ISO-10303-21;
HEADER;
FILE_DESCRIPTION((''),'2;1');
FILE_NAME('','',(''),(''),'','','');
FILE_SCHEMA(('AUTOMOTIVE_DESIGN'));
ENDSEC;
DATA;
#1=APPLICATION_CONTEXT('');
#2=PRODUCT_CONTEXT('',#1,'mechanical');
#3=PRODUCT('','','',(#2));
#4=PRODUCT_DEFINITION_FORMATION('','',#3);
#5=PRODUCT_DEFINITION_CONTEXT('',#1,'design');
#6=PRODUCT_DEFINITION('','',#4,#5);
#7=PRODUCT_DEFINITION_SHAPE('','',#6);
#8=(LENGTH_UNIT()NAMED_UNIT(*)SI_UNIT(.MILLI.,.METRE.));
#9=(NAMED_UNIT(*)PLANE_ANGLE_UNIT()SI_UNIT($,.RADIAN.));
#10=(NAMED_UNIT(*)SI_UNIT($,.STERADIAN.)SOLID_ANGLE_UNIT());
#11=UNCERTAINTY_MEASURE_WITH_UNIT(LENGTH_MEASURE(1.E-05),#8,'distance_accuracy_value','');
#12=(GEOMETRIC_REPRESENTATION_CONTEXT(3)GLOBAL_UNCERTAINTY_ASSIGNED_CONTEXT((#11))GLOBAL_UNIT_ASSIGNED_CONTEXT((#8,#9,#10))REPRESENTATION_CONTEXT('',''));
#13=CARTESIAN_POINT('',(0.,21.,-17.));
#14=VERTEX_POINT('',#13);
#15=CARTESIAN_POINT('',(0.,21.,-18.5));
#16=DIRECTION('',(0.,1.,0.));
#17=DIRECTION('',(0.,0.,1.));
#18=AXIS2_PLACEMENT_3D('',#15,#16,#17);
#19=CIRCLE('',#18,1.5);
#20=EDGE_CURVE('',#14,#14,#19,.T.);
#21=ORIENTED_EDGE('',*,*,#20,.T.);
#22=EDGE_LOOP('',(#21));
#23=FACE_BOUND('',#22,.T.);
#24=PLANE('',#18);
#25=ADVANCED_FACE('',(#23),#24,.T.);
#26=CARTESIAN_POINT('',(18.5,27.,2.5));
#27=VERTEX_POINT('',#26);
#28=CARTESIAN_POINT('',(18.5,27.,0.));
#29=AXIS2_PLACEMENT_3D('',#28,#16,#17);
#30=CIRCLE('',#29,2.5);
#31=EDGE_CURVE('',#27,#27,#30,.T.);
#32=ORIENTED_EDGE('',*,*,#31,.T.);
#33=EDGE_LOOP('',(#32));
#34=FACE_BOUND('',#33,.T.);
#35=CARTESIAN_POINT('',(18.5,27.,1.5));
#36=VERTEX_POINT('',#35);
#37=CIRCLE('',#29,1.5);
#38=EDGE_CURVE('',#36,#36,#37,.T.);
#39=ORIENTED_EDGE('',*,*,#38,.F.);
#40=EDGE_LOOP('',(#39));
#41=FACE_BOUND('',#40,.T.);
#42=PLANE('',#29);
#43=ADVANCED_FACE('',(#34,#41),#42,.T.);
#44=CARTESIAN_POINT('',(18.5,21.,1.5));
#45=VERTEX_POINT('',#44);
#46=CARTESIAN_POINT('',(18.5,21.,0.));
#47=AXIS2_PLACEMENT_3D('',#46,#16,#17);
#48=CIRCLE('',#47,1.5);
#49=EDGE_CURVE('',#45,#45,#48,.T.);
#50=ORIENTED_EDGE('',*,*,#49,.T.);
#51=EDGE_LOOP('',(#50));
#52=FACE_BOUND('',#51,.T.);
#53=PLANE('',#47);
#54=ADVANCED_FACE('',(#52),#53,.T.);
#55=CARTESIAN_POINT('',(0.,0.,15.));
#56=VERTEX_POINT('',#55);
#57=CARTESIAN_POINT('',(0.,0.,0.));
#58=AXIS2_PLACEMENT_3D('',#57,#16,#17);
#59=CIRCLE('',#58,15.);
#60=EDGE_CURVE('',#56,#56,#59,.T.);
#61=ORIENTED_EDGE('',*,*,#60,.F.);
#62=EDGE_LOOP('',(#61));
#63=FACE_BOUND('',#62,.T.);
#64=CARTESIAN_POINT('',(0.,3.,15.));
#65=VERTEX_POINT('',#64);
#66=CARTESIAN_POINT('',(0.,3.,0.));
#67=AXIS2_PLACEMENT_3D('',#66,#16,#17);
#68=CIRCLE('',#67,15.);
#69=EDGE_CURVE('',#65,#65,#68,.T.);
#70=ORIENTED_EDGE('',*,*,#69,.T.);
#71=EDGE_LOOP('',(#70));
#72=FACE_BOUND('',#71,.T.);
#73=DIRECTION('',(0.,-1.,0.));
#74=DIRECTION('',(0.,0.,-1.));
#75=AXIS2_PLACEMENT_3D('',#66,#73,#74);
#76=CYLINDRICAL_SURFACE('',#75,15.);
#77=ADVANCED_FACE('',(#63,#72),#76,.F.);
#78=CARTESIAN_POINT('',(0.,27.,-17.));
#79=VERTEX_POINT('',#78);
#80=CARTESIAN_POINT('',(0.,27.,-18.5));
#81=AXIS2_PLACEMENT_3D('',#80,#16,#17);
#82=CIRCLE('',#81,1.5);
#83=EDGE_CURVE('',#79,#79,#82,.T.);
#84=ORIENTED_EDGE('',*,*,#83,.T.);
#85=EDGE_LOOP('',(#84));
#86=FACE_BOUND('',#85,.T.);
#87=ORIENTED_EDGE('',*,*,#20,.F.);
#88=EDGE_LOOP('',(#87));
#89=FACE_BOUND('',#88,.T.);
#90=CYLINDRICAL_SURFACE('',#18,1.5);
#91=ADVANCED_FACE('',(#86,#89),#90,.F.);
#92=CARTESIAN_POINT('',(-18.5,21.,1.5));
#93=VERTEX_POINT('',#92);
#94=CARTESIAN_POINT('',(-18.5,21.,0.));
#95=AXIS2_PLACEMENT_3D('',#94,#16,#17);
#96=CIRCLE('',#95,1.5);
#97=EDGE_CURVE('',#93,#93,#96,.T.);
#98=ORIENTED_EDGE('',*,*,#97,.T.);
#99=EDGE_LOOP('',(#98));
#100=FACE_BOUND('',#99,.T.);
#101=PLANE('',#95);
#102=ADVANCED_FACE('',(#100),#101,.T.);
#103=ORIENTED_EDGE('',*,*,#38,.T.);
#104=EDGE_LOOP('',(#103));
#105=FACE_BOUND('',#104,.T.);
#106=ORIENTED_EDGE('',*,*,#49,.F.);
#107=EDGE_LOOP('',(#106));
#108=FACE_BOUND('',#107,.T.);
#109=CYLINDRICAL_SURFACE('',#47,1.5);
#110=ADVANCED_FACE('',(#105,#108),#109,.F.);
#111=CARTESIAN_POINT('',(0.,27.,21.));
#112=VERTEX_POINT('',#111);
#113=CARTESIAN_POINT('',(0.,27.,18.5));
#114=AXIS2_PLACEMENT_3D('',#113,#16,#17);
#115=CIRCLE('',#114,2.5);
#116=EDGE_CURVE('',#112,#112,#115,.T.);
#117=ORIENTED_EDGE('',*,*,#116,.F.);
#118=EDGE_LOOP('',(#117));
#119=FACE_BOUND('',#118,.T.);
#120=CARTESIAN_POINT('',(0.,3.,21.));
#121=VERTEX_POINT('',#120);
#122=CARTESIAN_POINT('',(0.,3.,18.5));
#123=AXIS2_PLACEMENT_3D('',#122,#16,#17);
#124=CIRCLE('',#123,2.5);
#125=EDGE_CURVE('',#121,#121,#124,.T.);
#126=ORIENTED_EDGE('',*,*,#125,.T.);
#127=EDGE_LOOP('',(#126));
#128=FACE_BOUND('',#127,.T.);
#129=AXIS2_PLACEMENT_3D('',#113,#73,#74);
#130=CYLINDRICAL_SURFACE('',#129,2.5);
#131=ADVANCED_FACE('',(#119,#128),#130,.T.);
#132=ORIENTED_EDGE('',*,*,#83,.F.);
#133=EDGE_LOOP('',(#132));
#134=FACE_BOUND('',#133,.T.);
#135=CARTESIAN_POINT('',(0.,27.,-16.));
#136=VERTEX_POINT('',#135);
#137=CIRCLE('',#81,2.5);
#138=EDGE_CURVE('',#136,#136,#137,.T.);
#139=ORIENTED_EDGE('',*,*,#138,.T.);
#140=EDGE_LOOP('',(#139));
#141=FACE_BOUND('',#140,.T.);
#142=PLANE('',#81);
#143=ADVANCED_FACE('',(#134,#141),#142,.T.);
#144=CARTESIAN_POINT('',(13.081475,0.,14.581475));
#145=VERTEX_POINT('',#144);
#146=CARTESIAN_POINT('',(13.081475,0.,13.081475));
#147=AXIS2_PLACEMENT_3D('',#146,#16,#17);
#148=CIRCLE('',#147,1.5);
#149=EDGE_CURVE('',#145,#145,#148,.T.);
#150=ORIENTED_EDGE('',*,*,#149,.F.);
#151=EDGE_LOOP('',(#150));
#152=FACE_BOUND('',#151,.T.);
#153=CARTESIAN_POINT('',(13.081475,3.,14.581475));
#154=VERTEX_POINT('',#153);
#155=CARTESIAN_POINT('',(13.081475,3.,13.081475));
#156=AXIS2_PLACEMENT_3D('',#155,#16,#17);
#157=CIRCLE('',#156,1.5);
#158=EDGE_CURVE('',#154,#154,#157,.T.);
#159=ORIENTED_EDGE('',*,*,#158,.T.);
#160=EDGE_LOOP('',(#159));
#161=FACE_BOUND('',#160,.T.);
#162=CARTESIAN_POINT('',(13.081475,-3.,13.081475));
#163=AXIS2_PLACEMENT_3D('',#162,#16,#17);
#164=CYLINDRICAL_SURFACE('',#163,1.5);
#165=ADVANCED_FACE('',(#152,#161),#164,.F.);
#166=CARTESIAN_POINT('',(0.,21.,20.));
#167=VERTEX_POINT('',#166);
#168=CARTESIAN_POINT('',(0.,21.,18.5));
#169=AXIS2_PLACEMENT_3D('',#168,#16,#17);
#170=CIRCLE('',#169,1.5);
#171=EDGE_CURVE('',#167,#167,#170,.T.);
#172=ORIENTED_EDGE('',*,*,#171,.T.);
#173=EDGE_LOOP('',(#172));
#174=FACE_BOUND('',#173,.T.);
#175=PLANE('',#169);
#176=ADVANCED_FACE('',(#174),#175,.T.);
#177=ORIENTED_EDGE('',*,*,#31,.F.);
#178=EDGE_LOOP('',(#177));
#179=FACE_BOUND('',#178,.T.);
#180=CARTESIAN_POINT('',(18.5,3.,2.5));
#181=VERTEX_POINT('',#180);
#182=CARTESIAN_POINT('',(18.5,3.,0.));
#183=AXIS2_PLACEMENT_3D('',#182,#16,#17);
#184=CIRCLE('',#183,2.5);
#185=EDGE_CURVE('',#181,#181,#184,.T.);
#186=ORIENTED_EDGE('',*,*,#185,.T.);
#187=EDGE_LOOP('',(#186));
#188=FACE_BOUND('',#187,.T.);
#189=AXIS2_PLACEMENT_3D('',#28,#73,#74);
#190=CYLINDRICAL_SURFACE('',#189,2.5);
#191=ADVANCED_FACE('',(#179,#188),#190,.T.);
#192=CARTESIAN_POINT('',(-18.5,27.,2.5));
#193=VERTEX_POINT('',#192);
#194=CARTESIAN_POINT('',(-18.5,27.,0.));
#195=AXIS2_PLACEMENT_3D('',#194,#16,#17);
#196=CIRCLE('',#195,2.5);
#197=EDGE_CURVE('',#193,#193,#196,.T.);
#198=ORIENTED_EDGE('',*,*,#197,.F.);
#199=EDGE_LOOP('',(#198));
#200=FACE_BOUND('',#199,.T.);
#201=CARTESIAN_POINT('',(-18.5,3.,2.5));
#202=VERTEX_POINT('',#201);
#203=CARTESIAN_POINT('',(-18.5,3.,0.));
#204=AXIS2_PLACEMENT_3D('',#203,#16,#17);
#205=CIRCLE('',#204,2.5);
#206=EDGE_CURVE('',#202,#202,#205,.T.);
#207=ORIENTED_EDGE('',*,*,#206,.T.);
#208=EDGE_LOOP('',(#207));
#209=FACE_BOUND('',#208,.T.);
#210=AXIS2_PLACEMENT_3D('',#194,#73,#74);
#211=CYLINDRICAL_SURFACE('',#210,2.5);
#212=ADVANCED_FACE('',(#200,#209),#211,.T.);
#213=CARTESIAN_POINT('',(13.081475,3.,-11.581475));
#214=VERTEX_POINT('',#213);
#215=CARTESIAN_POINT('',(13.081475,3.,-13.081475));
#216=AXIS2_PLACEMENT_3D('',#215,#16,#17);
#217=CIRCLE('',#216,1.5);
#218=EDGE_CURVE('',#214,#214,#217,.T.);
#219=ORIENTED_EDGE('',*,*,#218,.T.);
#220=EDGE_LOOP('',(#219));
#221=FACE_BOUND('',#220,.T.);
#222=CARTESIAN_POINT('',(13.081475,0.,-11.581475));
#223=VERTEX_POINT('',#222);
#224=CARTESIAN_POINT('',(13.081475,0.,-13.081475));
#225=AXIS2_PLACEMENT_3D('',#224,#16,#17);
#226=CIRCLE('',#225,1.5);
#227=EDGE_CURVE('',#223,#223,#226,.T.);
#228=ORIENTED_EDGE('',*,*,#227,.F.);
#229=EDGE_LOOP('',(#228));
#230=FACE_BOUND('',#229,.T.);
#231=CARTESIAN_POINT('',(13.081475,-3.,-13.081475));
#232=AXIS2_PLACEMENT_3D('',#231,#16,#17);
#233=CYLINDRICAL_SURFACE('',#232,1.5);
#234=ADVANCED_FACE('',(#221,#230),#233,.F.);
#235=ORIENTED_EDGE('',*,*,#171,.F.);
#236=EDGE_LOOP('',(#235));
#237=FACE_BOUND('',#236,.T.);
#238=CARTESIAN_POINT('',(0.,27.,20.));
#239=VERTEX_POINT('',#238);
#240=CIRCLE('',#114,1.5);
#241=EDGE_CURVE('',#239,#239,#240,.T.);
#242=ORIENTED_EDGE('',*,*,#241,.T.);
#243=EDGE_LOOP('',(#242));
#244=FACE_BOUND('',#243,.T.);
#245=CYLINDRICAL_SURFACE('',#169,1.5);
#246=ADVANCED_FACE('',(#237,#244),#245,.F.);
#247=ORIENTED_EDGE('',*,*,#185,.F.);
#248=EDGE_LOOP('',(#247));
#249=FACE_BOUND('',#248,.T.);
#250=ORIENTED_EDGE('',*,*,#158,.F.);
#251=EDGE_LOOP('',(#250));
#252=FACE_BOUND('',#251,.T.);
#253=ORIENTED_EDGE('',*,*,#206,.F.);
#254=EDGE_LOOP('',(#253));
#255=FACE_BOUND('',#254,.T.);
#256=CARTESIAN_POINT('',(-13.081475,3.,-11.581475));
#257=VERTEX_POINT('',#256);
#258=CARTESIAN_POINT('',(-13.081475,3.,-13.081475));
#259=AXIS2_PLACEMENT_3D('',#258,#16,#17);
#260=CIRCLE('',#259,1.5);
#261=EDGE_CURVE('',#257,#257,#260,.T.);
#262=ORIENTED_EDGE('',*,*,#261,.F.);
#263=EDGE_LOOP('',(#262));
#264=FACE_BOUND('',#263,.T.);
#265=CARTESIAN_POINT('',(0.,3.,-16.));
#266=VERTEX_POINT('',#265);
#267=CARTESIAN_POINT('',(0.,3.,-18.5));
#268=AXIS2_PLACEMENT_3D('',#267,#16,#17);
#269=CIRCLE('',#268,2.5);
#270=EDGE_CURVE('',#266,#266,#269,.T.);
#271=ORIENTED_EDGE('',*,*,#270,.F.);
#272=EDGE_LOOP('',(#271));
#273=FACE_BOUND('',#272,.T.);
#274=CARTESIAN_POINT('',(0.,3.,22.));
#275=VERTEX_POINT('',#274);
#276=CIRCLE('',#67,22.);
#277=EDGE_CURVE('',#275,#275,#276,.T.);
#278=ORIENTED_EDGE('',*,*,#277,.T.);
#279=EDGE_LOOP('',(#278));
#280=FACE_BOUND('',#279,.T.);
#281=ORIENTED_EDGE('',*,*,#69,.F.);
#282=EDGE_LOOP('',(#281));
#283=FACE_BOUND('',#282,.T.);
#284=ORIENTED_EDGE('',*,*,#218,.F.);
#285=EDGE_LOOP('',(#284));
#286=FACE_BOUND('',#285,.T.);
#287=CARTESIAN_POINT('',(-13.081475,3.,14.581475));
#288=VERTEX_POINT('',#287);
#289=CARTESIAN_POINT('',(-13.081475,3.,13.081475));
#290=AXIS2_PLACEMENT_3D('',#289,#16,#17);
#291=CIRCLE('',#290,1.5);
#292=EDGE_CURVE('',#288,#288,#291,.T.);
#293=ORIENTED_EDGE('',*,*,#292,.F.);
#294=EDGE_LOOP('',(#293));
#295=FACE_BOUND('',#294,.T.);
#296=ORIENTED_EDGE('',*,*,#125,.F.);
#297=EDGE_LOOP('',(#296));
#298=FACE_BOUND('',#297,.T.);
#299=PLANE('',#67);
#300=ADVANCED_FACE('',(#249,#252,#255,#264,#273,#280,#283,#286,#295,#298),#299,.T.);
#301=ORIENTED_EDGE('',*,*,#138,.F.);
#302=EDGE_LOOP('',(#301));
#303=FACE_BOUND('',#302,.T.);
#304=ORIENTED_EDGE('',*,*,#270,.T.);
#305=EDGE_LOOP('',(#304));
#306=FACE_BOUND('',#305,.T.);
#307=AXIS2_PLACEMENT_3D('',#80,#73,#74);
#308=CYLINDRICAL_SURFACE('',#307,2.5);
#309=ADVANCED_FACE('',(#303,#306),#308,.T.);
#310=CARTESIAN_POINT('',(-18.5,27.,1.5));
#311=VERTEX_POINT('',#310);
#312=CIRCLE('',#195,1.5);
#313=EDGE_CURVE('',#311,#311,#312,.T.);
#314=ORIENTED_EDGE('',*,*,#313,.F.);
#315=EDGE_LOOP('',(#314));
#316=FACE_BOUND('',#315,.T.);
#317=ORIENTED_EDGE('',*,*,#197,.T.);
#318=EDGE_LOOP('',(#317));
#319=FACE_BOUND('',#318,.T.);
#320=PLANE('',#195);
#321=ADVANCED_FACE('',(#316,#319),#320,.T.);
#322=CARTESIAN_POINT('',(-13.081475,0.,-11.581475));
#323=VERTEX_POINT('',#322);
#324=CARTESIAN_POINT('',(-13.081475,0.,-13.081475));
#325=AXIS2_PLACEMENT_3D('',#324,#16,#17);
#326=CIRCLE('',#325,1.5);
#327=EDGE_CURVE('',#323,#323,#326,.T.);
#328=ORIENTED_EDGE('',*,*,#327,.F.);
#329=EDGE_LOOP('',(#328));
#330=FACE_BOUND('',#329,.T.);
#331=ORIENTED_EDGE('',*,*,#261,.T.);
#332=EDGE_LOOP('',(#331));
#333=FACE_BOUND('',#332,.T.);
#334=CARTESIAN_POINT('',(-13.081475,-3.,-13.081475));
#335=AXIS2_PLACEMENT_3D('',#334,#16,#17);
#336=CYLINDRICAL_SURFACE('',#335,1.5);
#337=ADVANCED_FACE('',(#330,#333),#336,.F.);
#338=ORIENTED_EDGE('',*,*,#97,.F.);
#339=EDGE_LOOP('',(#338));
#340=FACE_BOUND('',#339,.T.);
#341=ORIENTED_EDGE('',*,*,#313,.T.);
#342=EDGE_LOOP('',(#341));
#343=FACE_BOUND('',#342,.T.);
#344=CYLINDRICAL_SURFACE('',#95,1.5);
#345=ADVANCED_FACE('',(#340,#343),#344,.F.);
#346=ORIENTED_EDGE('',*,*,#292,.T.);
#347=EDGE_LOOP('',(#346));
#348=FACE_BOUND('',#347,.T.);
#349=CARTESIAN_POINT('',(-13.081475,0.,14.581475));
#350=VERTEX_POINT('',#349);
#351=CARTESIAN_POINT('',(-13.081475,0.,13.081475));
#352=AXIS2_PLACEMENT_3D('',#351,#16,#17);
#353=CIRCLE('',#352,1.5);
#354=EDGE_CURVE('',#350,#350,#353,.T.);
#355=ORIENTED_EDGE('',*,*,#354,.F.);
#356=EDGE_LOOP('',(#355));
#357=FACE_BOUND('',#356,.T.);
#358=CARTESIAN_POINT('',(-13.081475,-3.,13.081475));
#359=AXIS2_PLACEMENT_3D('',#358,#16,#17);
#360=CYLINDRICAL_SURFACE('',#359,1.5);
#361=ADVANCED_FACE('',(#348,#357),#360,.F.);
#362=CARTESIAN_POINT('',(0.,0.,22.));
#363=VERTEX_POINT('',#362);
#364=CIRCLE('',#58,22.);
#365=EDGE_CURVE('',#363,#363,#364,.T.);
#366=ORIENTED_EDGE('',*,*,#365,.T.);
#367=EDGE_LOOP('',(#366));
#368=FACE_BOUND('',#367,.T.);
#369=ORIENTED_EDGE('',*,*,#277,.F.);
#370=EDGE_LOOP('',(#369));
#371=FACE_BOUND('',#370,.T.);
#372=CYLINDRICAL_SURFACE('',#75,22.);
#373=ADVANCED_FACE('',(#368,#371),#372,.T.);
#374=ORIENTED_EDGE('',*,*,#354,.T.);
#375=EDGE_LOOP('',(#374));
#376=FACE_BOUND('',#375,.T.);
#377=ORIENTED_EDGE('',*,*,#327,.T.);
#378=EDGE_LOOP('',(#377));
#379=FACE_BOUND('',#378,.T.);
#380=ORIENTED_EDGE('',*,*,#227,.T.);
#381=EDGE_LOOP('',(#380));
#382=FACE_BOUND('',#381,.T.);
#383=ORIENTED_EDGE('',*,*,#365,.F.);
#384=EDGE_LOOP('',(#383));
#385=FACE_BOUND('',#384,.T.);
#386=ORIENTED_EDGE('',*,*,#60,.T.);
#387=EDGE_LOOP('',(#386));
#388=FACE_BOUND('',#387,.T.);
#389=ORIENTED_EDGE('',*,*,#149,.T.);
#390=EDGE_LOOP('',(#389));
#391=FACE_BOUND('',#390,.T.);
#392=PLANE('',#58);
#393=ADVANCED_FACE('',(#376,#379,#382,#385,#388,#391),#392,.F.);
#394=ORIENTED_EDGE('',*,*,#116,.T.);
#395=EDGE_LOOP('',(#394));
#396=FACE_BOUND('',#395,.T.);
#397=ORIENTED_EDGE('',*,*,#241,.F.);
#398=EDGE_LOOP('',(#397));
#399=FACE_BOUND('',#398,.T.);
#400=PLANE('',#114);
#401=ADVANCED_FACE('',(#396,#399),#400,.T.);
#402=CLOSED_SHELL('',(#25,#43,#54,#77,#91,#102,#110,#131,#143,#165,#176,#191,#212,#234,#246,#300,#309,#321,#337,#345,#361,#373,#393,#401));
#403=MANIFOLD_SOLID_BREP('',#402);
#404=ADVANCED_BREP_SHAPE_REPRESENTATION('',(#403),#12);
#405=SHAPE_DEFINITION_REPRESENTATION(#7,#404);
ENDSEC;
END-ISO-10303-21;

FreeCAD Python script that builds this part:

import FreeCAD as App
import Part
import Sketcher

V = App.Vector

doc = App.newDocument("Part")
body = doc.addObject("PartDesign::Body", "Body")

sketch1 = body.newObject("Sketcher::SketchObject", "Sketch")
sketch1.AttachmentSupport = (doc.getObject("XZ_Plane"), [""])
sketch1.MapMode = "FlatFace"
sketch1.addGeometry([
    Part.Circle(V(0, 0, 0), V(0, 0, 1), 22),
    Part.Circle(V(0, 0, 0), V(0, 0, 1), 15),
], False)
sketch1.addConstraint([
    Sketcher.Constraint("Coincident", 0, 3, -1, 1),
    Sketcher.Constraint("Coincident", 1, 3, -1, 1),
    Sketcher.Constraint("Diameter", 0, 44.0),
    Sketcher.Constraint("Diameter", 1, 30.0),
])
pad1 = body.newObject("PartDesign::Pad", "Pad")
pad1.Profile = sketch1
pad1.Length = 3
pad1.Reversed = True

sketch2 = body.newObject("Sketcher::SketchObject", "Sketch001")
sketch2.AttachmentSupport = (doc.getObject("XZ_Plane"), [""])
sketch2.MapMode = "FlatFace"
sketch2.AttachmentOffset = App.Placement(V(0, 0, -3), App.Rotation())
sketch2.addGeometry([
    Part.Circle(V(0, -18.5, 0), V(0, 0, 1), 2.5),
    Part.Circle(V(18.5, 0, 0), V(0, 0, 1), 2.5),
    Part.Circle(V(0, 18.5, 0), V(0, 0, 1), 2.5),
    Part.Circle(V(-18.5, 0, 0), V(0, 0, 1), 2.5),
], False)
sketch2.addConstraint([
    Sketcher.Constraint("Equal", 0, 1),
    Sketcher.Constraint("Equal", 1, 2),
    Sketcher.Constraint("Equal", 2, 3),
    Sketcher.Constraint("Symmetric", 0, 3, 2, 3, -1, 1),
    Sketcher.Constraint("Symmetric", 1, 3, 3, 3, -1, 1),
    Sketcher.Constraint("PointOnObject", 0, 3, -2),
    Sketcher.Constraint("PointOnObject", 1, 3, -1),
    Sketcher.Constraint("Diameter", 0, 5.0),
    Sketcher.Constraint("DistanceY", 0, 3, 2, 3, 37.0),
    Sketcher.Constraint("DistanceX", 3, 3, 1, 3, 37.0),
])
pad2 = body.newObject("PartDesign::Pad", "Pad001")
pad2.Profile = sketch2
pad2.Length = 24
pad2.Reversed = True

sketch3 = body.newObject("Sketcher::SketchObject", "Sketch002")
sketch3.AttachmentSupport = (doc.getObject("XZ_Plane"), [""])
sketch3.MapMode = "FlatFace"
sketch3.AttachmentOffset = App.Placement(V(0, 0, -27), App.Rotation())
sketch3.addGeometry([
    Part.Circle(V(-18.5, 0, 0), V(0, 0, 1), 1.5),
    Part.Circle(V(0, -18.5, 0), V(0, 0, 1), 1.5),
    Part.Circle(V(18.5, 0, 0), V(0, 0, 1), 1.5),
    Part.Circle(V(0, 18.5, 0), V(0, 0, 1), 1.5),
], False)
sketch3.addConstraint([
    Sketcher.Constraint("Equal", 0, 1),
    Sketcher.Constraint("Equal", 1, 2),
    Sketcher.Constraint("Equal", 2, 3),
    Sketcher.Constraint("Symmetric", 0, 3, 2, 3, -1, 1),
    Sketcher.Constraint("Symmetric", 1, 3, 3, 3, -1, 1),
    Sketcher.Constraint("PointOnObject", 0, 3, -1),
    Sketcher.Constraint("PointOnObject", 1, 3, -2),
    Sketcher.Constraint("Diameter", 0, 3.0),
    Sketcher.Constraint("DistanceX", 0, 3, 2, 3, 37.0),
    Sketcher.Constraint("DistanceY", 1, 3, 3, 3, 37.0),
])
pocket1 = body.newObject("PartDesign::Pocket", "Pocket")
pocket1.Profile = sketch3
pocket1.Length = 6
pocket1.Reversed = True

sketch4 = body.newObject("Sketcher::SketchObject", "Sketch003")
sketch4.AttachmentSupport = (doc.getObject("XZ_Plane"), [""])
sketch4.MapMode = "FlatFace"
sketch4.AttachmentOffset = App.Placement(V(0, 0, -3), App.Rotation())
sketch4.addGeometry([
    Part.Circle(V(13.081475, -13.081475, 0), V(0, 0, 1), 1.5),
    Part.Circle(V(13.081475, 13.081475, 0), V(0, 0, 1), 1.5),
    Part.Circle(V(-13.081475, 13.081475, 0), V(0, 0, 1), 1.5),
    Part.Circle(V(-13.081475, -13.081475, 0), V(0, 0, 1), 1.5),
], False)
sketch4.addConstraint([
    Sketcher.Constraint("Equal", 0, 1),
    Sketcher.Constraint("Equal", 1, 2),
    Sketcher.Constraint("Equal", 2, 3),
    Sketcher.Constraint("Symmetric", 0, 3, 2, 3, -1, 1),
    Sketcher.Constraint("Symmetric", 1, 3, 3, 3, -1, 1),
    Sketcher.Constraint("Symmetric", 1, 3, 2, 3, -2),
    Sketcher.Constraint("Diameter", 0, 3.0),
    Sketcher.Constraint("DistanceY", 0, 3, 1, 3, 26.162951),
    Sketcher.Constraint("DistanceX", 2, 3, 1, 3, 26.162951),
])
pocket2 = body.newObject("PartDesign::Pocket", "Pocket001")
pocket2.Profile = sketch4
pocket2.Length = 6
pocket2.Reversed = True

doc.recompute()
